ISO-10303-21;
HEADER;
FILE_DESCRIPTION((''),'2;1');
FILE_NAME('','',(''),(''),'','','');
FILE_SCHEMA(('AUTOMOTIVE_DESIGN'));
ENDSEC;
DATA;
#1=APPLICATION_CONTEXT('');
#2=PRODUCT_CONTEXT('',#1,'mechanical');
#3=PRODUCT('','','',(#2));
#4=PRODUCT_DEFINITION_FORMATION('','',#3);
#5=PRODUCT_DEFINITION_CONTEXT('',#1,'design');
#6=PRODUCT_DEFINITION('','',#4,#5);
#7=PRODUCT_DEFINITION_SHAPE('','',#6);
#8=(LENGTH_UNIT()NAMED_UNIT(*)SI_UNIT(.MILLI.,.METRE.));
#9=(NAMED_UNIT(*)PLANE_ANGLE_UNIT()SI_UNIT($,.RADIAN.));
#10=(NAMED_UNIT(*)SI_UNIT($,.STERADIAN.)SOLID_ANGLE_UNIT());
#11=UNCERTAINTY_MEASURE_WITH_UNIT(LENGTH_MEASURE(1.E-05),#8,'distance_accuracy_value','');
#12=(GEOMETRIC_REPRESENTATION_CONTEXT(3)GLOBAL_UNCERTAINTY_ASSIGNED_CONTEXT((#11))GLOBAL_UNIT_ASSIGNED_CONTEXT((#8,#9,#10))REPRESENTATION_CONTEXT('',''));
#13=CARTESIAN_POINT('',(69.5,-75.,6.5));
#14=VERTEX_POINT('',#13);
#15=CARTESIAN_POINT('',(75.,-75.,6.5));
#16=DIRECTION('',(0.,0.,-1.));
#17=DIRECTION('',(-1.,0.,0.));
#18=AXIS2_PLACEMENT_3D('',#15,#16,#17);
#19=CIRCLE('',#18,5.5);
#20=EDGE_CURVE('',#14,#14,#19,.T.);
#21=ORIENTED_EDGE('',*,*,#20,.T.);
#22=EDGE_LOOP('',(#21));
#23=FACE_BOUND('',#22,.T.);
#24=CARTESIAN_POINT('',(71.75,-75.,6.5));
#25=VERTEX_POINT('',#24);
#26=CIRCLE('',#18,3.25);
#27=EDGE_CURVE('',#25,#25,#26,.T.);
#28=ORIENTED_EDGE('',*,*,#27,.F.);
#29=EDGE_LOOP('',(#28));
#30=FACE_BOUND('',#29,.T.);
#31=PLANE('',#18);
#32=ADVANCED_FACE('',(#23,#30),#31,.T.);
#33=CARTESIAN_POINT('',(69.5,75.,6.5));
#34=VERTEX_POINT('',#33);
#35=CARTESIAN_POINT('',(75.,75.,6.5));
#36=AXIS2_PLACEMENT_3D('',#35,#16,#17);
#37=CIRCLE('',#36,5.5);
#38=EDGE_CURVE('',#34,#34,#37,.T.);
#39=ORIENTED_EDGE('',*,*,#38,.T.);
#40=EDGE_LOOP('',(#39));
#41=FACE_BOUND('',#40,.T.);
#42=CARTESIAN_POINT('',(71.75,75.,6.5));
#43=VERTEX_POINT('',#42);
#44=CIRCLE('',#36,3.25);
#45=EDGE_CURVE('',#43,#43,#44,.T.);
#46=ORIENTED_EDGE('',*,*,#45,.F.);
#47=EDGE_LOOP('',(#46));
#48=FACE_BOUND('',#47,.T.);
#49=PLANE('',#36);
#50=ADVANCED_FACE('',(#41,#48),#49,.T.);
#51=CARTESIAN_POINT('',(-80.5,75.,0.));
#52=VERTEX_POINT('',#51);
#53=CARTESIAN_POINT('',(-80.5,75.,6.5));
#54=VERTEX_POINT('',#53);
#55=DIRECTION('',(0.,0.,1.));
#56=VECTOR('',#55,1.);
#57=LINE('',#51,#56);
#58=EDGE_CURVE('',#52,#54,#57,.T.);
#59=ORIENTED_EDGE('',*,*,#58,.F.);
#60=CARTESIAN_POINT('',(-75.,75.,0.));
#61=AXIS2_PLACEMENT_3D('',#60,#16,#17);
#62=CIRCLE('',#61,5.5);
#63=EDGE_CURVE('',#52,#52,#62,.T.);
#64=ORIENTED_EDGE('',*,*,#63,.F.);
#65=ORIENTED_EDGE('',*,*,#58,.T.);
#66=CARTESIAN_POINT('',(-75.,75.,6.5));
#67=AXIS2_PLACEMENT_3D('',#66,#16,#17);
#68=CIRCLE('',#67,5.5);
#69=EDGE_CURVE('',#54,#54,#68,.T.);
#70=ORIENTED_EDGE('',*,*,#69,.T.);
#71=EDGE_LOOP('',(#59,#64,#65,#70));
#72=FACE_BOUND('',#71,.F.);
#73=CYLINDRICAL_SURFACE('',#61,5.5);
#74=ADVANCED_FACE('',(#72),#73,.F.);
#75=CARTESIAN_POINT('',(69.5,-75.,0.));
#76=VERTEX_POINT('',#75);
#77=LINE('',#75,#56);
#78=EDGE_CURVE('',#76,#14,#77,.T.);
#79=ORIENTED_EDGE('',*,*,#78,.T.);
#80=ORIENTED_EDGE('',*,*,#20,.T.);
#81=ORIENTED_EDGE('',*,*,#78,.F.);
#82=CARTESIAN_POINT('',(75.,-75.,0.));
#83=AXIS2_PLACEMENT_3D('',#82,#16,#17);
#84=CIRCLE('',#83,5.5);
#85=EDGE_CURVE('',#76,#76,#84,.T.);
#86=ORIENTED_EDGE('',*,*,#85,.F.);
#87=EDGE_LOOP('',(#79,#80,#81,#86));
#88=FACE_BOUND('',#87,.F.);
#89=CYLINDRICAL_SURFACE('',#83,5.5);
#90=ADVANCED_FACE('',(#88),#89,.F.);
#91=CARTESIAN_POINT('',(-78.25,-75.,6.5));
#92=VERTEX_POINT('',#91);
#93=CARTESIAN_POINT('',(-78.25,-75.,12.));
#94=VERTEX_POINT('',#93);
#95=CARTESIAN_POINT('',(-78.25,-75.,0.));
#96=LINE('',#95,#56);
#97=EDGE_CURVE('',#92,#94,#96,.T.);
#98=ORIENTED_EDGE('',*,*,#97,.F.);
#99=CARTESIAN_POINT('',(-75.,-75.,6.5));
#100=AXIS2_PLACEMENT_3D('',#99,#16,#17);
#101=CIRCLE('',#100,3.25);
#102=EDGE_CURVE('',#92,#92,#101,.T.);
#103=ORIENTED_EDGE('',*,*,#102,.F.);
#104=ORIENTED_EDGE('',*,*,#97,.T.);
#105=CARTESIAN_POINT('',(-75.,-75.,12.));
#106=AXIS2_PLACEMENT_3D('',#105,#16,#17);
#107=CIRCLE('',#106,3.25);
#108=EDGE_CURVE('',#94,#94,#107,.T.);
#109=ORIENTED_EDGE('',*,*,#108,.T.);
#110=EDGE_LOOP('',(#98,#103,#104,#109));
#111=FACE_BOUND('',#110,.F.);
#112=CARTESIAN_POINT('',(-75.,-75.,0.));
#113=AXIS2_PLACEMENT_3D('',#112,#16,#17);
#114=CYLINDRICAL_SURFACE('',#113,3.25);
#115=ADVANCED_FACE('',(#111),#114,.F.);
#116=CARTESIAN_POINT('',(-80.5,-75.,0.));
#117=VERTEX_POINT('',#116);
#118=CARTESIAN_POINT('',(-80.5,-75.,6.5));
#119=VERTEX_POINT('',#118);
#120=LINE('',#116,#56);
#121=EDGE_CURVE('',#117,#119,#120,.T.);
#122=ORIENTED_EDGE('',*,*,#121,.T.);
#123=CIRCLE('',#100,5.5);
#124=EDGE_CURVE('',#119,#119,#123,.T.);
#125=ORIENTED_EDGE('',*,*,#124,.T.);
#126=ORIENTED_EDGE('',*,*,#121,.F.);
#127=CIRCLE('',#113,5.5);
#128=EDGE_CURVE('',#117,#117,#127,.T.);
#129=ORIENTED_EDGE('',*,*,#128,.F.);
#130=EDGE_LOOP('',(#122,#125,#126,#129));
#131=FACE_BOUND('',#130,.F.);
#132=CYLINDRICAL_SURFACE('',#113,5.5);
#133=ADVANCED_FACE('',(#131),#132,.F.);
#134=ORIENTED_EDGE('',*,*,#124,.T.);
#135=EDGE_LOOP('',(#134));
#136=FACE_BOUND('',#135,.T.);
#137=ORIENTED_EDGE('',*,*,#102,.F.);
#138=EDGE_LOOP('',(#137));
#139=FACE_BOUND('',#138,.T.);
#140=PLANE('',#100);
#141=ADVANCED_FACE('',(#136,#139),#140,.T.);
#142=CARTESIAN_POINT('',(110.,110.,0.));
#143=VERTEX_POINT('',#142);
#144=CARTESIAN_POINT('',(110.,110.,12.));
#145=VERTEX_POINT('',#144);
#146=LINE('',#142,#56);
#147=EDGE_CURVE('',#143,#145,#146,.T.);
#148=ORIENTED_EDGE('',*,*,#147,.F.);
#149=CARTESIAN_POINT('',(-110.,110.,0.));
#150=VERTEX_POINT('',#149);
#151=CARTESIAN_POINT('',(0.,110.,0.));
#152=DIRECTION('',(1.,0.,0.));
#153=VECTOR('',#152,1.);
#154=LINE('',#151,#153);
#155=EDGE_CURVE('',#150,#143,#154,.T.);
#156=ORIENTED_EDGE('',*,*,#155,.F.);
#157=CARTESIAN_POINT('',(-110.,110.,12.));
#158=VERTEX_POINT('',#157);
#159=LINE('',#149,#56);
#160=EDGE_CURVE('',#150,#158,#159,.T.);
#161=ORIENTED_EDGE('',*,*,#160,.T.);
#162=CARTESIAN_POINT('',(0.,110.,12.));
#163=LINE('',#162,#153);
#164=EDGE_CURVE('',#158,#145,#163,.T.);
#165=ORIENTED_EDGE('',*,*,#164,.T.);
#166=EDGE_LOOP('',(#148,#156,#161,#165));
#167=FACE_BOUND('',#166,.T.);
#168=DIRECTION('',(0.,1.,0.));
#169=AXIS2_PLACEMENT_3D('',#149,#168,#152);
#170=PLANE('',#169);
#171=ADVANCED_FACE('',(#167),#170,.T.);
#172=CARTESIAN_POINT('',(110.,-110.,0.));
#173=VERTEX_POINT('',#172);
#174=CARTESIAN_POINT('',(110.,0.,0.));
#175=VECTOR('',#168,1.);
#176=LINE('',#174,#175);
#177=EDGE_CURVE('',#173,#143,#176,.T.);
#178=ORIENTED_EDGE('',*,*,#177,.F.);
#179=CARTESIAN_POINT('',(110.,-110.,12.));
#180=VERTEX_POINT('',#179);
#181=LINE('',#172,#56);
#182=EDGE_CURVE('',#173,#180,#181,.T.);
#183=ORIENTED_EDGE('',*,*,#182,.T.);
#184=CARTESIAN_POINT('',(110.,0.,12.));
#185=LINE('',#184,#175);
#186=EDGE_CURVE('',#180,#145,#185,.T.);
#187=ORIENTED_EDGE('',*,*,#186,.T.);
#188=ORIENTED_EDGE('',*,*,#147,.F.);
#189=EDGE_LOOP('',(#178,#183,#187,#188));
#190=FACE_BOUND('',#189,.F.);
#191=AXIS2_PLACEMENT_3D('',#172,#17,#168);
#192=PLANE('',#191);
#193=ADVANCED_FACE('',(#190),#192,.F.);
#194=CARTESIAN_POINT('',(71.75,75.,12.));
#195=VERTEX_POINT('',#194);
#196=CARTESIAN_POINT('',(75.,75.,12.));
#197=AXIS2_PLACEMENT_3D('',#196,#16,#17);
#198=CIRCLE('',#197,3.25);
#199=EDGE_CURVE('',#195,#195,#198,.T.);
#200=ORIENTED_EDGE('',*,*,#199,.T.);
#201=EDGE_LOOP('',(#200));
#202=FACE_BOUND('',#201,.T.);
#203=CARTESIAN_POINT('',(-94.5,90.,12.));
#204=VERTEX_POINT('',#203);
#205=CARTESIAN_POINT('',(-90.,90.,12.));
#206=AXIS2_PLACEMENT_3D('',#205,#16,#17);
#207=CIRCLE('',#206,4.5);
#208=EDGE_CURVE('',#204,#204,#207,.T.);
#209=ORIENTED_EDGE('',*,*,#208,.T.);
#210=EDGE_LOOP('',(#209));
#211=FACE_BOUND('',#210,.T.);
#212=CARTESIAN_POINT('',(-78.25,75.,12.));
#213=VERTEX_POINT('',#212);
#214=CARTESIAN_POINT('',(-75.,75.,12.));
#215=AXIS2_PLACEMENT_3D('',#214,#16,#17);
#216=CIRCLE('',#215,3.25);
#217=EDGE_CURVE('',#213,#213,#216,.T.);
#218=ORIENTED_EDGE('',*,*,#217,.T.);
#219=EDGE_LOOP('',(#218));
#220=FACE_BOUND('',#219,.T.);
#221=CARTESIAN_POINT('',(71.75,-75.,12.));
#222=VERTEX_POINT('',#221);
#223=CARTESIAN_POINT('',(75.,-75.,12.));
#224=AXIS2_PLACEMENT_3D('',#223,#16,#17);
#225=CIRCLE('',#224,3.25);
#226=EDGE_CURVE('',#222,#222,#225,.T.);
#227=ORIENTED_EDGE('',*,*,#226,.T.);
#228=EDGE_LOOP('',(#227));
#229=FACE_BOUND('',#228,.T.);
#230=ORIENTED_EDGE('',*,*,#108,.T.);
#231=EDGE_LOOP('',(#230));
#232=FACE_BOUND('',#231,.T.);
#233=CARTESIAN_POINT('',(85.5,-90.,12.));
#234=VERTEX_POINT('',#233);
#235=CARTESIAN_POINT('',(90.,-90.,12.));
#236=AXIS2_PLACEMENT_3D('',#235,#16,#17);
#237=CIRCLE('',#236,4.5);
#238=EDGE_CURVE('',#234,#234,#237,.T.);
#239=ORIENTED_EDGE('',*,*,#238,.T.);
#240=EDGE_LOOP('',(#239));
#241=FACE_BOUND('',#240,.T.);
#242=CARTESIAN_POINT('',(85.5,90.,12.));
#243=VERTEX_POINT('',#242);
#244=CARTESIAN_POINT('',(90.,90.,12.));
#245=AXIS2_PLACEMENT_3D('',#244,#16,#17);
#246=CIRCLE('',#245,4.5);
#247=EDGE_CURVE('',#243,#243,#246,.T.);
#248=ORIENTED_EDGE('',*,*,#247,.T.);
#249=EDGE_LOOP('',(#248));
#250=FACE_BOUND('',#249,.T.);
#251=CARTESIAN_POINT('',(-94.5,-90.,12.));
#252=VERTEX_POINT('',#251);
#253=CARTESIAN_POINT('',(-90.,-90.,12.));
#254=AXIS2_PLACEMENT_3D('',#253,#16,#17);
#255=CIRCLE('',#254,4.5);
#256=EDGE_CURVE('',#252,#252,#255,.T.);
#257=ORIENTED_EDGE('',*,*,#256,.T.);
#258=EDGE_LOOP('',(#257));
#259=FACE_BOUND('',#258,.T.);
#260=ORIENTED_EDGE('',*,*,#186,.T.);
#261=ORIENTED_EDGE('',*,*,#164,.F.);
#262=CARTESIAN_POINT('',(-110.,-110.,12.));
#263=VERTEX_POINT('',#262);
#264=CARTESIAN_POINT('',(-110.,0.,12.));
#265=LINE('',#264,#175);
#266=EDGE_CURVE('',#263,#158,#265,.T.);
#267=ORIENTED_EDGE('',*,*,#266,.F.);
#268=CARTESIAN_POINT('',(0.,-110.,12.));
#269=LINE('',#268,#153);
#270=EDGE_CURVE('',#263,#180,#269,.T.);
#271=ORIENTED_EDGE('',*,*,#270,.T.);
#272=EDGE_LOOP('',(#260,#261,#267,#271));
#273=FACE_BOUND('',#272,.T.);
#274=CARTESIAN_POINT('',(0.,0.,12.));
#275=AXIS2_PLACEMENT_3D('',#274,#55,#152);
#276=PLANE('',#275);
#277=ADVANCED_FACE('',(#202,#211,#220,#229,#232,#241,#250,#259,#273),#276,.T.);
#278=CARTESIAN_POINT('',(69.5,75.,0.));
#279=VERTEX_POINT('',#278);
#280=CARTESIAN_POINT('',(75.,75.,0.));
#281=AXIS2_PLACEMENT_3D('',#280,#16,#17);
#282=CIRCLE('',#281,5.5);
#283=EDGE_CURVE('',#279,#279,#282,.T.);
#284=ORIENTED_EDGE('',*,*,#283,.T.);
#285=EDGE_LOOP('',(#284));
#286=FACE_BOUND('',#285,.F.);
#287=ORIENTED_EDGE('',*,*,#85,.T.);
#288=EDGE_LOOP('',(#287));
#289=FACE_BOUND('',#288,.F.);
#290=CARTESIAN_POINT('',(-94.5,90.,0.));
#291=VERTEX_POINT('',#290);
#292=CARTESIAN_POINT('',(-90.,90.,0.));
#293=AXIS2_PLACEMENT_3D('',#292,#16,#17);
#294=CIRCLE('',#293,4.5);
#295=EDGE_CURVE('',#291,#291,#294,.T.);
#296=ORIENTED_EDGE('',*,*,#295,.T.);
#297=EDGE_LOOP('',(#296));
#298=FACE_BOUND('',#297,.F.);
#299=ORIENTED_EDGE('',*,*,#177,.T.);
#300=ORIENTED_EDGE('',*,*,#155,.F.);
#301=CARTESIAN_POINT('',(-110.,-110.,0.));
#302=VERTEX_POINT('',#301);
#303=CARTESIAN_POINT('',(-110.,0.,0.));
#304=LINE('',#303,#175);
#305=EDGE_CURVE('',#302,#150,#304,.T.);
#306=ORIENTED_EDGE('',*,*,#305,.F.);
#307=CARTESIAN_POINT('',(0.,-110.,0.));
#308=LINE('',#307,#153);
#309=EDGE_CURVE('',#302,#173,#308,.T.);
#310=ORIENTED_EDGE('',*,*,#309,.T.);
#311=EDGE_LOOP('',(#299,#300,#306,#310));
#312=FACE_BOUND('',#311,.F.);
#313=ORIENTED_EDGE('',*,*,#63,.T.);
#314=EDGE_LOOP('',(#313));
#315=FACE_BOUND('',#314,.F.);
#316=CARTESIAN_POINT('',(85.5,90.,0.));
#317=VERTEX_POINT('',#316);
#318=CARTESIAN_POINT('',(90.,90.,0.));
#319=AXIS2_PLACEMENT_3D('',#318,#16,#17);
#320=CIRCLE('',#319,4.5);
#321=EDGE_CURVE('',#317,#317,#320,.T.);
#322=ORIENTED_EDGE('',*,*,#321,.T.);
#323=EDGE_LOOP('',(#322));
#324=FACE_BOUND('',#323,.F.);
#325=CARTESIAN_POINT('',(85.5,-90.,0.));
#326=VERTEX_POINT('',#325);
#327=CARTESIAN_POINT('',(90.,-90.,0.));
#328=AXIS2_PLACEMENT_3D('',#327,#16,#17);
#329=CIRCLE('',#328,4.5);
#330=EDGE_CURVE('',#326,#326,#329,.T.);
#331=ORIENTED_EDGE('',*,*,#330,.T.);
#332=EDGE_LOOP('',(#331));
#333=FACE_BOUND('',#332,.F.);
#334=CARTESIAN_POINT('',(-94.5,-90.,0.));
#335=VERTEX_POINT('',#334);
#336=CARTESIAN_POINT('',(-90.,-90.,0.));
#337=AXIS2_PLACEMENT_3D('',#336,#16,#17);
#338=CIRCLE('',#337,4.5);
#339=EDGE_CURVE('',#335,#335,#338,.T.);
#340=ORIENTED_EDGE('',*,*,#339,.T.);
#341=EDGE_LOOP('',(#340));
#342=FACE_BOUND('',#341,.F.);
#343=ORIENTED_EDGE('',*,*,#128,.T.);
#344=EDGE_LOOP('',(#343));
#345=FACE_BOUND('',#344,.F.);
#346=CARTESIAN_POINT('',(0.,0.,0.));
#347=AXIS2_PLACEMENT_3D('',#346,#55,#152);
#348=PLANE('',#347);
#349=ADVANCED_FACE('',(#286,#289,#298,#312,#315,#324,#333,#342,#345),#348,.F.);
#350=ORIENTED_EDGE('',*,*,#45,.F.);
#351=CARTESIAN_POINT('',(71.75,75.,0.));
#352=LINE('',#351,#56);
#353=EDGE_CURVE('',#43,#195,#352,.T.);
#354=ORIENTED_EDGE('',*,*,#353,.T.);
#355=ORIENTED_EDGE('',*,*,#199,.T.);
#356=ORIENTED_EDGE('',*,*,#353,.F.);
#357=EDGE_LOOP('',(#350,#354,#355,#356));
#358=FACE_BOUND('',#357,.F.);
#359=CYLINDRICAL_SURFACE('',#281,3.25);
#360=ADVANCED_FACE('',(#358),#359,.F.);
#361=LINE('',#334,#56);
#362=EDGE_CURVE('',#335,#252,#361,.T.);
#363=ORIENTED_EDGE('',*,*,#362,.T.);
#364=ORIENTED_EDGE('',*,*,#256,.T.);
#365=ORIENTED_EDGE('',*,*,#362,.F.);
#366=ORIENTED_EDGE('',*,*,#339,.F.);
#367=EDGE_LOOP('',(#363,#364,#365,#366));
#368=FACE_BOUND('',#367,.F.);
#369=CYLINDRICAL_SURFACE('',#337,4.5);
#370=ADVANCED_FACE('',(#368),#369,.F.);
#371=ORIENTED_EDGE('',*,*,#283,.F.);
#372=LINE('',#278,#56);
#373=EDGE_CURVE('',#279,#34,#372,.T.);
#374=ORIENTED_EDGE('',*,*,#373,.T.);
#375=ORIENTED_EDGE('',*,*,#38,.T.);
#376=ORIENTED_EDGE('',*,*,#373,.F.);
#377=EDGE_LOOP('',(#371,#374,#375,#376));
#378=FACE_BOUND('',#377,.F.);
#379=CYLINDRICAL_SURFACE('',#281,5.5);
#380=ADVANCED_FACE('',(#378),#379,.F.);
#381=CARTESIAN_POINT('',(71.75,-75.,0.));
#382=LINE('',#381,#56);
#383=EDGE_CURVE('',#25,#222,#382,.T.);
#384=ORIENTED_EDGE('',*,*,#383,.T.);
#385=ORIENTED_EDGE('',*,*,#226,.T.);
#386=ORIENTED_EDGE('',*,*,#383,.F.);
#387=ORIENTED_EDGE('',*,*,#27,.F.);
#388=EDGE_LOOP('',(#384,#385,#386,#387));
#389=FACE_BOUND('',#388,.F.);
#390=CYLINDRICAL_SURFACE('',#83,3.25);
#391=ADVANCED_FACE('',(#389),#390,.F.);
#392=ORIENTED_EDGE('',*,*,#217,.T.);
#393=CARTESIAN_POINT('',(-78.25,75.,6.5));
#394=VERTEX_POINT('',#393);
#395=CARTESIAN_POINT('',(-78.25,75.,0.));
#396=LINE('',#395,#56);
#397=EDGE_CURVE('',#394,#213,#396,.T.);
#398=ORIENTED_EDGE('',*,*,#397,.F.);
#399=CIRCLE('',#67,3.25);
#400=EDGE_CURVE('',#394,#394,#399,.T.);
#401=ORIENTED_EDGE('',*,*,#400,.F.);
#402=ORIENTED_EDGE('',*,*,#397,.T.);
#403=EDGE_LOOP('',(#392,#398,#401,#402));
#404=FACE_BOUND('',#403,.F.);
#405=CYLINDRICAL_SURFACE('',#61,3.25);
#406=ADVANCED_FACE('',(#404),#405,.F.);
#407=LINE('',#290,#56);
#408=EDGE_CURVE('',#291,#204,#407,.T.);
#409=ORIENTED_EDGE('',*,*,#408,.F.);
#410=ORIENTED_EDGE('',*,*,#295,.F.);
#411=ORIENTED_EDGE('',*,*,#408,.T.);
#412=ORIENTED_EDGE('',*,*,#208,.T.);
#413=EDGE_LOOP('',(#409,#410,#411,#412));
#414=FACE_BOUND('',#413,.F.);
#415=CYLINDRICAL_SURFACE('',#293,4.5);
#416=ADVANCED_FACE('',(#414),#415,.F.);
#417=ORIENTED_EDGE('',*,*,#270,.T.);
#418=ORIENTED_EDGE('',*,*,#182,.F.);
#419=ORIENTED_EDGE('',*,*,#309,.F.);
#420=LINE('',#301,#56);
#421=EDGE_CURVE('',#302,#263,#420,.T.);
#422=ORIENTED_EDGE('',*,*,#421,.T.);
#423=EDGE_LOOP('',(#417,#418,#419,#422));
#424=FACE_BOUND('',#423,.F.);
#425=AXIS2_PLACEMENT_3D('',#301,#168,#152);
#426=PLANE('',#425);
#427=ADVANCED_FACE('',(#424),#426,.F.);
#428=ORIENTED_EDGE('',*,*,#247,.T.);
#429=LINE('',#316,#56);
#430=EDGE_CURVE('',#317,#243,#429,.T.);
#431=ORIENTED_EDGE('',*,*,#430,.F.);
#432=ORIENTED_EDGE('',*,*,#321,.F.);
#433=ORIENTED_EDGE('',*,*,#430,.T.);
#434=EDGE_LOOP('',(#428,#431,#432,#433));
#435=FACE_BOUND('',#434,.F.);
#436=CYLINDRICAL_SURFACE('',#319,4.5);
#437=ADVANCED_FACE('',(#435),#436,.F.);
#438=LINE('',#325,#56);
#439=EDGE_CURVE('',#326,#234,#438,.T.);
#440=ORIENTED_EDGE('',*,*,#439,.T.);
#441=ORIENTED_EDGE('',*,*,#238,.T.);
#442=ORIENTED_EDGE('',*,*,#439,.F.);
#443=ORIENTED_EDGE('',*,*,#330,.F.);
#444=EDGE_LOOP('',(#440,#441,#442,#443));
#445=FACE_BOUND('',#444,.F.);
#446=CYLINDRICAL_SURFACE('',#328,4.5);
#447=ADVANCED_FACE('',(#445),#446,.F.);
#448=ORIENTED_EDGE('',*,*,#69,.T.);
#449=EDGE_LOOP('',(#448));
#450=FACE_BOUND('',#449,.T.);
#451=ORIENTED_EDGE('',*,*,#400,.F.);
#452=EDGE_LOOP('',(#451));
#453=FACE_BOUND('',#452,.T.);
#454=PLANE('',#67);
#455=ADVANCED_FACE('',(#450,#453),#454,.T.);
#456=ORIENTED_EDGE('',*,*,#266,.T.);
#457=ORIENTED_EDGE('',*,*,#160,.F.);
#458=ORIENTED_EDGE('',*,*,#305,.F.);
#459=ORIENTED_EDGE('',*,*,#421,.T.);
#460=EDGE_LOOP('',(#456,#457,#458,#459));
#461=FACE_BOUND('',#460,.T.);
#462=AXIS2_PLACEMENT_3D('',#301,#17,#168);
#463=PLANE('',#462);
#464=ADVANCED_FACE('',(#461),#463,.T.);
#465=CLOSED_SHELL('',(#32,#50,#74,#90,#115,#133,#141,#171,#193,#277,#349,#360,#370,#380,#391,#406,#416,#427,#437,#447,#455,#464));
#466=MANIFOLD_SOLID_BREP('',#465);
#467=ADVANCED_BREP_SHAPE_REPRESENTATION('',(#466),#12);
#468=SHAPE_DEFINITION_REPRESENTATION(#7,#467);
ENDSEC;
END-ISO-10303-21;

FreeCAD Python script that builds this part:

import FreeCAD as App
import Part
import Sketcher
from FreeCAD import Vector
Q = App.Units.Quantity


def add_polygon(sketch, points):
    """Adds a closed chain of lines whose ends are joined by coincident constraints."""
    first, n = sketch.GeometryCount, len(points)
    for a, b in zip(points, points[1:] + points[:1]):
        sketch.addGeometry(Part.LineSegment(App.Vector(*a, 0), App.Vector(*b, 0)), False)
    for i in range(n):
        sketch.addConstraint(Sketcher.Constraint("Coincident", first + i, 2, first + (i + 1) % n, 1))

doc = App.newDocument("Part")
body = doc.addObject("PartDesign::Body", "Body")

# Sketch on XY plane
sketch1 = body.newObject("Sketcher::SketchObject", "Sketch")
sketch1.AttachmentSupport = (doc.getObject("XY_Plane"), [""])
sketch1.MapMode = "FlatFace"
add_polygon(sketch1, [(-110, 110), (-110, -110), (110, -110), (110, 110)])  # lines 0-3
sketch1.addConstraint([
    Sketcher.Constraint("Vertical", 0),
    Sketcher.Constraint("Horizontal", 1),
    Sketcher.Constraint("Vertical", 2),
    Sketcher.Constraint("Horizontal", 3),
    Sketcher.Constraint("Symmetric", 0, 2, 2, 2, -1, 1),
    Sketcher.Constraint("Equal", 3, 0),
    Sketcher.Constraint("DistanceX", 1, 1, 1, 2, Q("220 mm")),
])
pad1 = body.newObject("PartDesign::Pad", "Pad")
pad1.Profile = sketch1
pad1.Length = 12

# Sketch on XY plane
sketch2 = body.newObject("Sketcher::SketchObject", "Sketch001")
sketch2.AttachmentSupport = (doc.getObject("XY_Plane"), [""])
sketch2.MapMode = "FlatFace"
sketch2.addGeometry([
    Part.Circle(Vector(-90, -90, 0), Vector(0, 0, 1), 4.5),  # 0
    Part.Circle(Vector(-90, 90, 0), Vector(0, 0, 1), 4.5),  # 1
    Part.Circle(Vector(90, -90, 0), Vector(0, 0, 1), 4.5),  # 2
    Part.Circle(Vector(90, 90, 0), Vector(0, 0, 1), 4.5),  # 3
    Part.Circle(Vector(-75, -75, 0), Vector(0, 0, 1), 3.25),  # 4
    Part.Circle(Vector(-75, 75, 0), Vector(0, 0, 1), 3.25),  # 5
    Part.Circle(Vector(75, -75, 0), Vector(0, 0, 1), 3.25),  # 6
    Part.Circle(Vector(75, 75, 0), Vector(0, 0, 1), 3.25),  # 7
], False)
sketch2.addConstraint([
    Sketcher.Constraint("Equal", 0, 1),
    Sketcher.Constraint("Equal", 1, 2),
    Sketcher.Constraint("Equal", 2, 3),
    Sketcher.Constraint("Equal", 4, 5),
    Sketcher.Constraint("Equal", 5, 6),
    Sketcher.Constraint("Equal", 6, 7),
    Sketcher.Constraint("Symmetric", 1, 3, 2, 3, -1, 1),
    Sketcher.Constraint("Symmetric", 0, 3, 3, 3, -1, 1),
    Sketcher.Constraint("Symmetric", 5, 3, 6, 3, -1, 1),
    Sketcher.Constraint("Symmetric", 4, 3, 7, 3, -1, 1),
    Sketcher.Constraint("Symmetric", 0, 3, 2, 3, -2),
    Sketcher.Constraint("Symmetric", 4, 3, 6, 3, -2),
    Sketcher.Constraint("Diameter", 0, Q("9 mm")),
    Sketcher.Constraint("Diameter", 4, Q("6.5 mm")),
    Sketcher.Constraint("DistanceX", 0, 3, -1, 1, Q("90 mm")),
    Sketcher.Constraint("DistanceY", 0, 3, -1, 1, Q("90 mm")),
    Sketcher.Constraint("DistanceX", 4, 3, -1, 1, Q("75 mm")),
    Sketcher.Constraint("DistanceY", 4, 3, -1, 1, Q("75 mm")),
])
pocket1 = body.newObject("PartDesign::Pocket", "Pocket")
pocket1.Profile = sketch2
pocket1.Length = 13
pocket1.Reversed = True

# Sketch on XY plane
sketch3 = body.newObject("Sketcher::SketchObject", "Sketch002")
sketch3.AttachmentSupport = (doc.getObject("XY_Plane"), [""])
sketch3.MapMode = "FlatFace"
sketch3.addGeometry([
    Part.Circle(Vector(-75, -75, 0), Vector(0, 0, 1), 5.5),
    Part.Circle(Vector(-75, 75, 0), Vector(0, 0, 1), 5.5),
    Part.Circle(Vector(75, -75, 0), Vector(0, 0, 1), 5.5),
    Part.Circle(Vector(75, 75, 0), Vector(0, 0, 1), 5.5),
], False)
sketch3.addConstraint([
    Sketcher.Constraint("Equal", 0, 1),
    Sketcher.Constraint("Equal", 1, 2),
    Sketcher.Constraint("Equal", 2, 3),
    Sketcher.Constraint("Symmetric", 1, 3, 2, 3, -1, 1),
    Sketcher.Constraint("Symmetric", 0, 3, 3, 3, -1, 1),
    Sketcher.Constraint("Symmetric", 0, 3, 2, 3, -2),
    Sketcher.Constraint("Diameter", 0, Q("11 mm")),
    Sketcher.Constraint("DistanceX", 0, 3, -1, 1, Q("75 mm")),
    Sketcher.Constraint("DistanceY", 0, 3, -1, 1, Q("75 mm")),
])
pocket2 = body.newObject("PartDesign::Pocket", "Pocket001")
pocket2.Profile = sketch3
pocket2.Length = 6.5
pocket2.Reversed = True

doc.recompute()
